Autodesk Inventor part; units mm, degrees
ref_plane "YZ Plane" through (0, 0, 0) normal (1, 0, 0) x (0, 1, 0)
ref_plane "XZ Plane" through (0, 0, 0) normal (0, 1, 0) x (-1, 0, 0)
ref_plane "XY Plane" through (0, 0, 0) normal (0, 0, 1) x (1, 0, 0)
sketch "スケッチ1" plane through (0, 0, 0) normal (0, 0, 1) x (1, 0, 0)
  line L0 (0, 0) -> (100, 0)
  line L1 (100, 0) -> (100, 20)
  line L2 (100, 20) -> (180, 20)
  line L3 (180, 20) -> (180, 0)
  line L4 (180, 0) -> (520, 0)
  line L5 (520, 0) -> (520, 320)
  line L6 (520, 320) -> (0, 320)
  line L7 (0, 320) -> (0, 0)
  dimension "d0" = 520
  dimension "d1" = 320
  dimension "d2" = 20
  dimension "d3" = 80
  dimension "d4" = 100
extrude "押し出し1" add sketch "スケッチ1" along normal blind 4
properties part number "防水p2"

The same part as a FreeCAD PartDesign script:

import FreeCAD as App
import Part
import Sketcher
from FreeCAD import Vector
Q = App.Units.Quantity


def add_polygon(sketch, points):
    """Adds a closed chain of lines whose ends are joined by coincident constraints."""
    first, n = sketch.GeometryCount, len(points)
    for a, b in zip(points, points[1:] + points[:1]):
        sketch.addGeometry(Part.LineSegment(App.Vector(*a, 0), App.Vector(*b, 0)), False)
    for i in range(n):
        sketch.addConstraint(Sketcher.Constraint("Coincident", first + i, 2, first + (i + 1) % n, 1))

doc = App.newDocument("Part")
body = doc.addObject("PartDesign::Body", "Body")

# Sketch on XY plane
sketch1 = doc.addObject("Sketcher::SketchObject", "Sketch")
body.addObject(sketch1)
sketch1.AttachmentSupport = (doc.XY_Plane, [""])
sketch1.MapMode = "FlatFace"
add_polygon(sketch1, [(0, 320), (0, 0), (100, 0), (100, 20), (180, 20), (180, 0), (520, 0), (520, 320)])  # lines 0-7
sketch1.addConstraint([
    Sketcher.Constraint("Vertical", 0),
    Sketcher.Constraint("Horizontal", 1),
    Sketcher.Constraint("Vertical", 2),
    Sketcher.Constraint("Horizontal", 3),
    Sketcher.Constraint("Vertical", 4),
    Sketcher.Constraint("Horizontal", 5),
    Sketcher.Constraint("Vertical", 6),
    Sketcher.Constraint("Horizontal", 7),
    Sketcher.Constraint("Coincident", 0, 2, -1, 1),
    Sketcher.Constraint("PointOnObject", 4, 2, -1),
    Sketcher.Constraint("DistanceX", 1, 1, 1, 2, Q("100 mm")),
    Sketcher.Constraint("DistanceX", 3, 1, 3, 2, Q("80 mm")),
    Sketcher.Constraint("DistanceX", 7, 2, 7, 1, Q("520 mm")),
    Sketcher.Constraint("DistanceY", 0, 2, 0, 1, Q("320 mm")),
    Sketcher.Constraint("DistanceY", 2, 1, 2, 2, Q("20 mm")),
])
pad1 = doc.addObject("PartDesign::Pad", "Pad")
body.addObject(pad1)
pad1.Profile = sketch1
pad1.Length = 4

doc.recompute()
